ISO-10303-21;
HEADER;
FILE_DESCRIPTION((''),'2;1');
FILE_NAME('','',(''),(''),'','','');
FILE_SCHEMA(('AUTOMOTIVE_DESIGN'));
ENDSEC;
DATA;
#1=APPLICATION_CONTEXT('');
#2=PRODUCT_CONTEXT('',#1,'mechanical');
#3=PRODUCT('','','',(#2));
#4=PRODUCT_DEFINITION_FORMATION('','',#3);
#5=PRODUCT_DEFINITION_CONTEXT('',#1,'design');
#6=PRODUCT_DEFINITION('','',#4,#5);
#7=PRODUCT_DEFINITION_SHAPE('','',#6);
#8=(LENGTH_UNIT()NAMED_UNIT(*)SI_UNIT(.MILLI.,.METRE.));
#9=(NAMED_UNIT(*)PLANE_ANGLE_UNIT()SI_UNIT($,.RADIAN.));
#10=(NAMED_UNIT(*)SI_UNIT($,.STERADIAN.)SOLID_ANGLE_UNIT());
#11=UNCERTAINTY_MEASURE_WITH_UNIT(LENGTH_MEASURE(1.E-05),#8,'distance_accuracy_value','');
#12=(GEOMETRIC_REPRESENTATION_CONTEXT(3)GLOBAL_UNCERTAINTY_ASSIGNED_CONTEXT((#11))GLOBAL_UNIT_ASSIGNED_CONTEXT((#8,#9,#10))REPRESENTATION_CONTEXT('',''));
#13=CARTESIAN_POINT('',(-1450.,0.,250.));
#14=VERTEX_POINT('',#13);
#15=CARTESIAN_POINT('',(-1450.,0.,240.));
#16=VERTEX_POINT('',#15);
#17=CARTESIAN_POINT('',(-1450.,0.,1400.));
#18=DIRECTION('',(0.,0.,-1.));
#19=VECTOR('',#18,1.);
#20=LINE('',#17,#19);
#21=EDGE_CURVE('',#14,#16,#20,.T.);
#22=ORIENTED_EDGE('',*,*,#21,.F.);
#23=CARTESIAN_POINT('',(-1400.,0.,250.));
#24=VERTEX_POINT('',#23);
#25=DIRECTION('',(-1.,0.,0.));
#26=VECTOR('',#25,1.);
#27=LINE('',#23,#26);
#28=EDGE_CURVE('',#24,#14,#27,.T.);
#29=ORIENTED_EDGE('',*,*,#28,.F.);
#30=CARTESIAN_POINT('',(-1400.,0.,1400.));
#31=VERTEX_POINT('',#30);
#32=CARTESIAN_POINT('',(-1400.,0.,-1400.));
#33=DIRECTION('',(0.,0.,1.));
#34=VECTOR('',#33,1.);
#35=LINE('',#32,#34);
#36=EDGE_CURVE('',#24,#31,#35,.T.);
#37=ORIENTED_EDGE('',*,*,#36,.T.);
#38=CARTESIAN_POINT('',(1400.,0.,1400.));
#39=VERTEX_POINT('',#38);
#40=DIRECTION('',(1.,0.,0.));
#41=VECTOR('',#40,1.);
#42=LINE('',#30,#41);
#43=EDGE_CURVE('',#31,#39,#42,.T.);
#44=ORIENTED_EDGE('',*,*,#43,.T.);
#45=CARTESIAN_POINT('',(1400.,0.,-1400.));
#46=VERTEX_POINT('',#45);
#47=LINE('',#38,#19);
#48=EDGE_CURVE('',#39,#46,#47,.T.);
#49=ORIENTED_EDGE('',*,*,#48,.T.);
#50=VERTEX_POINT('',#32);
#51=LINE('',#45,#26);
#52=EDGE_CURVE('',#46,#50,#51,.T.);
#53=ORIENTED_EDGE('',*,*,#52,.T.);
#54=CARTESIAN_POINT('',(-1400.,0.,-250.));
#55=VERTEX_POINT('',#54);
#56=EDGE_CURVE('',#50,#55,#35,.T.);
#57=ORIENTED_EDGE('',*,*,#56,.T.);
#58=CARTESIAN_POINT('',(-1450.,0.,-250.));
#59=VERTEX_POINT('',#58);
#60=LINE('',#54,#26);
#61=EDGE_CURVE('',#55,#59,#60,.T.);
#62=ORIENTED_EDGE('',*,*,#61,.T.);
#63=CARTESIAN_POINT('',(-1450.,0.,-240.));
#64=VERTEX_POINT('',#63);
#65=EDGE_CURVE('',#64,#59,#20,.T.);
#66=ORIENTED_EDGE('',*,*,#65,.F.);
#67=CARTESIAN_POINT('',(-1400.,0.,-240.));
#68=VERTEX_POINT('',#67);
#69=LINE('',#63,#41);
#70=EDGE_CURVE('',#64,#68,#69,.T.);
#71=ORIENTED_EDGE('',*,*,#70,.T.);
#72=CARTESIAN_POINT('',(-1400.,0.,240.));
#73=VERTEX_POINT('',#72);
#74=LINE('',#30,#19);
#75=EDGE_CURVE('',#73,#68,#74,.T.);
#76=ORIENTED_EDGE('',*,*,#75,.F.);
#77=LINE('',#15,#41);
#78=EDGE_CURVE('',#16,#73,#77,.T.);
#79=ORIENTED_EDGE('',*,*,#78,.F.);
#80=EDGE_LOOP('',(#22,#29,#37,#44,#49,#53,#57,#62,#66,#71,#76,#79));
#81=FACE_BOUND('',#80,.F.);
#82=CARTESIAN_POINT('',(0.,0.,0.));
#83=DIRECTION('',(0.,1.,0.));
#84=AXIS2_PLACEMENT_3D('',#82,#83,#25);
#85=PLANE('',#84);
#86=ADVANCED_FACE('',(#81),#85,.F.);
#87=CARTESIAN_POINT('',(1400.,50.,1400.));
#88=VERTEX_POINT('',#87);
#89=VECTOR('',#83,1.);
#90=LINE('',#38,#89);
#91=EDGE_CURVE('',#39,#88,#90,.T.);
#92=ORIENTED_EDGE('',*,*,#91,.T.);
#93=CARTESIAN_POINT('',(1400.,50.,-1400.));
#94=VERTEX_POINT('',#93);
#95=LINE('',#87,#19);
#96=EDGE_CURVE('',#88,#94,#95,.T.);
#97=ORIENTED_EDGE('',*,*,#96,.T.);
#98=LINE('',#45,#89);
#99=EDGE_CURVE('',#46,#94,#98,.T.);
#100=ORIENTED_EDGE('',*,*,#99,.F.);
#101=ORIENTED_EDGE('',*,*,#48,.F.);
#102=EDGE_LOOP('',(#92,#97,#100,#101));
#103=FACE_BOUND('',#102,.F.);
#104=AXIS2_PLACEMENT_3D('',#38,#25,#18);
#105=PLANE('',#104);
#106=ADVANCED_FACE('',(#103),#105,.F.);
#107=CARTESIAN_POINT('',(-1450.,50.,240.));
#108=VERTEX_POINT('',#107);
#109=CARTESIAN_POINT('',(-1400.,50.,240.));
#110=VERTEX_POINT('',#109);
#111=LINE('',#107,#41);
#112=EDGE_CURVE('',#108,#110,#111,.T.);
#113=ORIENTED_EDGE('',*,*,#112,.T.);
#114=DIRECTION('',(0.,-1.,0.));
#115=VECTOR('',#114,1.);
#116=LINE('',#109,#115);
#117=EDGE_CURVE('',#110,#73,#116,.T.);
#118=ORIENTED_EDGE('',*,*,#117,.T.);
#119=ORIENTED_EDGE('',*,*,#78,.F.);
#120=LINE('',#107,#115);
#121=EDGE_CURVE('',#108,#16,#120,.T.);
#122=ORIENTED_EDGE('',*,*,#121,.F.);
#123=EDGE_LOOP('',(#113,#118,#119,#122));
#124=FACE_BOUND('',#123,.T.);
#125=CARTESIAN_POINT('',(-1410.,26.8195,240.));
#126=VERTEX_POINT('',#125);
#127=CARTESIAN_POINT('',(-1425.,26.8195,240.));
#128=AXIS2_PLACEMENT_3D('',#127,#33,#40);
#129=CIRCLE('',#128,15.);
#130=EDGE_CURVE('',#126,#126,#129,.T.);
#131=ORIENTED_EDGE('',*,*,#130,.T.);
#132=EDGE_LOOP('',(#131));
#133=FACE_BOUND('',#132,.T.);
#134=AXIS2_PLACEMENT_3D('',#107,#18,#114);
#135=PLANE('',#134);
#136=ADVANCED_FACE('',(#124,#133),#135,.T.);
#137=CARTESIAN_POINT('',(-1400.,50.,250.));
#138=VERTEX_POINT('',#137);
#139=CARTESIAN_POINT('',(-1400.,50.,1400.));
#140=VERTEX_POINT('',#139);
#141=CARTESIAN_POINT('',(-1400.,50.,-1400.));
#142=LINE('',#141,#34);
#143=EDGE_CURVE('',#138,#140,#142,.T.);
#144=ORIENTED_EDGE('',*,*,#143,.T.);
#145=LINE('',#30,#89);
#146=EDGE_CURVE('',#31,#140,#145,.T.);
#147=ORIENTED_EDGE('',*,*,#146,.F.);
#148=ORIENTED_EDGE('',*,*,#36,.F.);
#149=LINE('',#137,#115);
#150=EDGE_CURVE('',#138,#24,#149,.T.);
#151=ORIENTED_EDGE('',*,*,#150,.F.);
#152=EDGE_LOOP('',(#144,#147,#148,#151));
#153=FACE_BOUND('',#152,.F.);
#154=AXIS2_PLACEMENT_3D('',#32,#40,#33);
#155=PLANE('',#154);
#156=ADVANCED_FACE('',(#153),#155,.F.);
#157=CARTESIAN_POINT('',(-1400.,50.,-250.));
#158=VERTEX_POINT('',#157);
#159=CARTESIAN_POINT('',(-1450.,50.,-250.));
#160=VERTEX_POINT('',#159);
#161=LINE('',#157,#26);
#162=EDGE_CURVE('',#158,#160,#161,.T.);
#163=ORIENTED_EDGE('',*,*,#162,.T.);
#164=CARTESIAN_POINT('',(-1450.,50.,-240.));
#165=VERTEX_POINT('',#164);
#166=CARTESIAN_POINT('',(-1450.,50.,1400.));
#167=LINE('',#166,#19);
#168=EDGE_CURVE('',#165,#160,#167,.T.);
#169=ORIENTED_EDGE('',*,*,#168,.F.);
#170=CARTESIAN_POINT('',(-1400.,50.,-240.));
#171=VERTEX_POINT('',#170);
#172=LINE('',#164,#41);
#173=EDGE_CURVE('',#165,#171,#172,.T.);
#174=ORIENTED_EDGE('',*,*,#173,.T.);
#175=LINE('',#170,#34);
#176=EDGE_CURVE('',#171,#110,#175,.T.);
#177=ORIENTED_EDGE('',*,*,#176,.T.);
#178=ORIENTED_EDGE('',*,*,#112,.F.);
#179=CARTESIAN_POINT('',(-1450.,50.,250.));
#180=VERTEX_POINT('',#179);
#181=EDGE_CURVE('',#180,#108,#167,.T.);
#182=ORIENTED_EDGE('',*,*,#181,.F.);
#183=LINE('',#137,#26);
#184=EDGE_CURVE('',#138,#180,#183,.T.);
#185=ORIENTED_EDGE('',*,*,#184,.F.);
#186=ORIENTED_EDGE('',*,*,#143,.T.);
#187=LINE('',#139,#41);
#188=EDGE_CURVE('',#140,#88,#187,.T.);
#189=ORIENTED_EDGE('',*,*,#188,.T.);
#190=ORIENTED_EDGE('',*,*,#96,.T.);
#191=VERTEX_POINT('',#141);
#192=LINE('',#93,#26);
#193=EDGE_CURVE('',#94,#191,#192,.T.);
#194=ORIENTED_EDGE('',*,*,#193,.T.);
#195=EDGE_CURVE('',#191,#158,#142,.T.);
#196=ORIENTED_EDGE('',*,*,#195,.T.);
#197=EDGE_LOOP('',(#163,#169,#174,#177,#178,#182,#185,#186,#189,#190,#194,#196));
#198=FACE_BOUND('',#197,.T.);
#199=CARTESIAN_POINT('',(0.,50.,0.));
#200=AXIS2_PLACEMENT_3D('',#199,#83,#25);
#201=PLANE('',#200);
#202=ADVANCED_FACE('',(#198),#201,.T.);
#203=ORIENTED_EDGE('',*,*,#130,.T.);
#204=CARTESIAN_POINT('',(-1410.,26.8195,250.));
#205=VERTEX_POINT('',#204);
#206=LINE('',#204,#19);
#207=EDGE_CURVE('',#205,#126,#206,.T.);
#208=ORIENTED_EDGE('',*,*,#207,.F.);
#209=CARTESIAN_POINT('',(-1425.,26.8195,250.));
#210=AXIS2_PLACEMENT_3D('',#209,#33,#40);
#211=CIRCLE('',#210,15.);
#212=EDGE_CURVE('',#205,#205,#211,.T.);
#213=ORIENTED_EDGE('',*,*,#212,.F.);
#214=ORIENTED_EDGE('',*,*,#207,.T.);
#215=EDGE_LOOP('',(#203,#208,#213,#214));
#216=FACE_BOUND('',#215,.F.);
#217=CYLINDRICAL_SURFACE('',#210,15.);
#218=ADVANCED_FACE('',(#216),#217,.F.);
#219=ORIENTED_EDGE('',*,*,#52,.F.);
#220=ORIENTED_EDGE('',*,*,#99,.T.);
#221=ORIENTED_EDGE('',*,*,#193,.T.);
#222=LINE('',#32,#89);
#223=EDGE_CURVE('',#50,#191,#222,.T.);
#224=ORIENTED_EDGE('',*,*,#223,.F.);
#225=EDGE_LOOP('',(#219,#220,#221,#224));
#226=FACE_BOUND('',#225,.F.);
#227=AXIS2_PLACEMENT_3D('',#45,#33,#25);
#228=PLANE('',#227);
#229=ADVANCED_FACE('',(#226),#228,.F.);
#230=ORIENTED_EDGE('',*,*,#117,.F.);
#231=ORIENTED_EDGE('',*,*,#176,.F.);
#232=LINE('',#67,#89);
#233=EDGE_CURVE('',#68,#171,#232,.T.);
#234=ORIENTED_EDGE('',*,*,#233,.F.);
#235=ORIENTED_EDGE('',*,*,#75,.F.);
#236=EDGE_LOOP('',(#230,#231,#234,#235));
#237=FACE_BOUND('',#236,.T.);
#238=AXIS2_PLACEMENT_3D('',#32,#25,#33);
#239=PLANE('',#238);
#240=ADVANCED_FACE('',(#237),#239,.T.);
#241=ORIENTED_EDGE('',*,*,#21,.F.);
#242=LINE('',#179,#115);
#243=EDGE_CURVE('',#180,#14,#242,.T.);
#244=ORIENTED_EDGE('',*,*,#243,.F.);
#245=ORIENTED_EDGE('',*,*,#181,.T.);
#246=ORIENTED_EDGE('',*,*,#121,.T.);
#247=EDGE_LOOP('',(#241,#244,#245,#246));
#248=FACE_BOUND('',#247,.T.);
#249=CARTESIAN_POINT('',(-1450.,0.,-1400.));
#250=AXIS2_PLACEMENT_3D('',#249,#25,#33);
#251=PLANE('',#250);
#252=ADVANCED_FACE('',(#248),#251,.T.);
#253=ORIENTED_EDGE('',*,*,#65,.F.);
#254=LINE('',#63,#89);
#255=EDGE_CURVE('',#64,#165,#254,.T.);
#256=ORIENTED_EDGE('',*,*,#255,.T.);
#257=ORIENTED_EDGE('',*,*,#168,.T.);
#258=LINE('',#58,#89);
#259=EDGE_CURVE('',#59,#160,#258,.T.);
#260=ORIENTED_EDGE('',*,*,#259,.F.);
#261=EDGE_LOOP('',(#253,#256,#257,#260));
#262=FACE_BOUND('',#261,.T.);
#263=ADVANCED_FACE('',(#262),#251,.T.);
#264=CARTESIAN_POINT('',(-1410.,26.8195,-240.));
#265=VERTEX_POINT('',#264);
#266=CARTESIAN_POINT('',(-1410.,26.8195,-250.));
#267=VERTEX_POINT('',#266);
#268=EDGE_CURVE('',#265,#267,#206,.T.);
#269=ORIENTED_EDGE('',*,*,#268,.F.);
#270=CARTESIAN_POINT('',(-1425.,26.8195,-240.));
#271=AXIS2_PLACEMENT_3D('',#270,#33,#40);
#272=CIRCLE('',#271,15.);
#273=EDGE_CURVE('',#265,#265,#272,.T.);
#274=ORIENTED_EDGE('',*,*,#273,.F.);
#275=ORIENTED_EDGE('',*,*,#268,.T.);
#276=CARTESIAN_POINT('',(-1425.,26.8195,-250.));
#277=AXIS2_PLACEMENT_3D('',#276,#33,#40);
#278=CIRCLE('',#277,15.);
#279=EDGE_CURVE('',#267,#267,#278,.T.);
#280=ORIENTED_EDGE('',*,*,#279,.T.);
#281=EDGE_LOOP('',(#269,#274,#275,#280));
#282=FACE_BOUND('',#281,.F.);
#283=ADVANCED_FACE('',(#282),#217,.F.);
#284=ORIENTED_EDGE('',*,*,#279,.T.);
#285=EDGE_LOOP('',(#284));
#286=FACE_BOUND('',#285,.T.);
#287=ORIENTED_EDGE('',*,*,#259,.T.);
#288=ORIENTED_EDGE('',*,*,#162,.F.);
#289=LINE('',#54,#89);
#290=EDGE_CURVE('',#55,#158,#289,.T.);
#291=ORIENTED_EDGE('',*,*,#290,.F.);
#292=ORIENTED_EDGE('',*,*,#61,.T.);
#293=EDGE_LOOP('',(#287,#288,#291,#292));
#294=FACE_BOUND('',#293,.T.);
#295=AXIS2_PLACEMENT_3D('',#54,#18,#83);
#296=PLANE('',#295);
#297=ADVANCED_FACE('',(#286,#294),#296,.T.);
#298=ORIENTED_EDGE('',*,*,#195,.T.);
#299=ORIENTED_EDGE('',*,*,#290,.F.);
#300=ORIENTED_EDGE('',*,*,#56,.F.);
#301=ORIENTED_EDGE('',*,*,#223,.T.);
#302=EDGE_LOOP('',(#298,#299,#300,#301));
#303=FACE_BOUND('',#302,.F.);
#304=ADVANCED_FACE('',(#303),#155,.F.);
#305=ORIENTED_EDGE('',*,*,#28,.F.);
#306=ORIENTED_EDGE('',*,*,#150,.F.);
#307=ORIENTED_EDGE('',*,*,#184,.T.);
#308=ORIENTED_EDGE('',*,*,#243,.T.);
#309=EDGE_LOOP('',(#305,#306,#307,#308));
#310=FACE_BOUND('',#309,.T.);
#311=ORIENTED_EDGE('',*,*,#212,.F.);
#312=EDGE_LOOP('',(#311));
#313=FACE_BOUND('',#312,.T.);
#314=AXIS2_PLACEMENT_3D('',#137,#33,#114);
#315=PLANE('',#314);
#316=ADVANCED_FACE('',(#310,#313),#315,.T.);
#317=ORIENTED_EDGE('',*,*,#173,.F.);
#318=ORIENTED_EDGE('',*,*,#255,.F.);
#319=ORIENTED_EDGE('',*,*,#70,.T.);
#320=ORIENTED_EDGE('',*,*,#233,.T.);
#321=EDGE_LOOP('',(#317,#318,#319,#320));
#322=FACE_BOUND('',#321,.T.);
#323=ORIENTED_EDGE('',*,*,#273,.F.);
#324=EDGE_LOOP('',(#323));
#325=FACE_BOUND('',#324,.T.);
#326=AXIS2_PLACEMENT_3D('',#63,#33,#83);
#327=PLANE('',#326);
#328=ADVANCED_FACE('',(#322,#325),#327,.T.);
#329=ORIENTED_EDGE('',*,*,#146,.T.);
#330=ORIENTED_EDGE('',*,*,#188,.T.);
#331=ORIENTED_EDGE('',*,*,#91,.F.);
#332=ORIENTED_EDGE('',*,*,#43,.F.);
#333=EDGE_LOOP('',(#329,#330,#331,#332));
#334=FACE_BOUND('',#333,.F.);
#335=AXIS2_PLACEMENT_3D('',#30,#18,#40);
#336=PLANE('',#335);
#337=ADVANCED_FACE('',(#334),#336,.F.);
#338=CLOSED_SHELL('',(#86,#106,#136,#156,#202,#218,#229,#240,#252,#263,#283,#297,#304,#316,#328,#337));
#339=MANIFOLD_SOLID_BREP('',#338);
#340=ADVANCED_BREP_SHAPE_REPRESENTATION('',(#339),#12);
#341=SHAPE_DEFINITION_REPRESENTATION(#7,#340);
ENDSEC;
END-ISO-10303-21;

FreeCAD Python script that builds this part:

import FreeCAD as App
import Part
import Sketcher

V = App.Vector
Q = App.Units.Quantity


def add_polygon(sketch, points):
    """Adds a closed chain of lines whose ends are joined by coincident constraints."""
    first, n = sketch.GeometryCount, len(points)
    for a, b in zip(points, points[1:] + points[:1]):
        sketch.addGeometry(Part.LineSegment(App.Vector(*a, 0), App.Vector(*b, 0)), False)
    for i in range(n):
        sketch.addConstraint(Sketcher.Constraint("Coincident", first + i, 2, first + (i + 1) % n, 1))

doc = App.newDocument("Part")
body = doc.addObject("PartDesign::Body", "Body")

# Sketch on XZ plane
sketch1 = doc.addObject("Sketcher::SketchObject", "Sketch")
body.addObject(sketch1)
sketch1.AttachmentSupport = (doc.XZ_Plane, [""])
sketch1.MapMode = "FlatFace"
add_polygon(sketch1, [(-1400, -1400), (-1400, 1400), (1400, 1400), (1400, -1400)])  # lines 0-3
sketch1.addConstraint(Sketcher.Constraint("Vertical", 0))
sketch1.addConstraint(Sketcher.Constraint("Horizontal", 1))
sketch1.addConstraint(Sketcher.Constraint("Vertical", 2))
sketch1.addConstraint(Sketcher.Constraint("Horizontal", 3))
sketch1.addConstraint(Sketcher.Constraint("Symmetric", 0, 2, 2, 2, -1, 1))
sketch1.addConstraint(Sketcher.Constraint("Equal", 3, 0))
sketch1.addConstraint(Sketcher.Constraint("DistanceX", 1, 1, 1, 2, Q("2800 mm")))
pad1 = doc.addObject("PartDesign::Pad", "Pad")
body.addObject(pad1)
pad1.Profile = sketch1
pad1.Length = 50
pad1.Reversed = True

# Sketch on YZ plane
sketch2 = doc.addObject("Sketcher::SketchObject", "Sketch001")
body.addObject(sketch2)
sketch2.AttachmentSupport = (doc.YZ_Plane, [""])
sketch2.MapMode = "FlatFace"
sketch2.AttachmentOffset = App.Placement(V(0, 0, -1400), App.Rotation())
add_polygon(sketch2, [(0, 250), (50, 250), (50, -250), (0, -250)])  # lines 0-3
sketch2.addConstraint(Sketcher.Constraint("Horizontal", 0))
sketch2.addConstraint(Sketcher.Constraint("Vertical", 1))
sketch2.addConstraint(Sketcher.Constraint("Horizontal", 2))
sketch2.addConstraint(Sketcher.Constraint("Vertical", 3))
sketch2.addConstraint(Sketcher.Constraint("Symmetric", 2, 2, 3, 2, -1, 1))
sketch2.addConstraint(Sketcher.Constraint("DistanceY", 1, 2, 1, 1, Q("500 mm")))
sketch2.addConstraint(Sketcher.Constraint("DistanceX", 0, 1, 0, 2, Q("50 mm")))
pad2 = doc.addObject("PartDesign::Pad", "Pad001")
body.addObject(pad2)
pad2.Profile = sketch2
pad2.Length = 50
pad2.Reversed = True

# Sketch on YZ plane
sketch3 = doc.addObject("Sketcher::SketchObject", "Sketch002")
body.addObject(sketch3)
sketch3.AttachmentSupport = (doc.YZ_Plane, [""])
sketch3.MapMode = "FlatFace"
sketch3.AttachmentOffset = App.Placement(V(0, 0, -1450), App.Rotation())
add_polygon(sketch3, [(0, -240), (0, 240), (50, 240), (50, -240)])  # lines 0-3
sketch3.addConstraint(Sketcher.Constraint("Vertical", 0))
sketch3.addConstraint(Sketcher.Constraint("Horizontal", 1))
sketch3.addConstraint(Sketcher.Constraint("Vertical", 2))
sketch3.addConstraint(Sketcher.Constraint("Horizontal", 3))
sketch3.addConstraint(Sketcher.Constraint("Symmetric", 0, 2, 3, 2, -1, 1))
sketch3.addConstraint(Sketcher.Constraint("DistanceX", 1, 1, 1, 2, Q("50 mm")))
sketch3.addConstraint(Sketcher.Constraint("DistanceY", 0, 1, 0, 2, Q("480 mm")))
pocket1 = doc.addObject("PartDesign::Pocket", "Pocket")
body.addObject(pocket1)
pocket1.Profile = sketch3
pocket1.Length = 50
pocket1.Reversed = True

# Sketch on XY plane
sketch4 = doc.addObject("Sketcher::SketchObject", "Sketch003")
body.addObject(sketch4)
sketch4.AttachmentSupport = (doc.XY_Plane, [""])
sketch4.MapMode = "FlatFace"
sketch4.AttachmentOffset = App.Placement(V(0, 0, 250), App.Rotation())
sketch4.addGeometry(Part.Circle(V(-1425, 26.8195, 0), V(0, 0, 1), 15), False)
sketch4.addConstraint(Sketcher.Constraint("Diameter", 0, Q("30 mm")))
sketch4.addConstraint(Sketcher.Constraint("DistanceX", 0, 3, -1, 1, Q("1425 mm")))
sketch4.addConstraint(Sketcher.Constraint("DistanceY", -1, 1, 0, 3, Q("26.8195 mm")))
pocket2 = doc.addObject("PartDesign::Pocket", "Pocket001")
body.addObject(pocket2)
pocket2.Profile = sketch4
pocket2.Length = 700

doc.recompute()
